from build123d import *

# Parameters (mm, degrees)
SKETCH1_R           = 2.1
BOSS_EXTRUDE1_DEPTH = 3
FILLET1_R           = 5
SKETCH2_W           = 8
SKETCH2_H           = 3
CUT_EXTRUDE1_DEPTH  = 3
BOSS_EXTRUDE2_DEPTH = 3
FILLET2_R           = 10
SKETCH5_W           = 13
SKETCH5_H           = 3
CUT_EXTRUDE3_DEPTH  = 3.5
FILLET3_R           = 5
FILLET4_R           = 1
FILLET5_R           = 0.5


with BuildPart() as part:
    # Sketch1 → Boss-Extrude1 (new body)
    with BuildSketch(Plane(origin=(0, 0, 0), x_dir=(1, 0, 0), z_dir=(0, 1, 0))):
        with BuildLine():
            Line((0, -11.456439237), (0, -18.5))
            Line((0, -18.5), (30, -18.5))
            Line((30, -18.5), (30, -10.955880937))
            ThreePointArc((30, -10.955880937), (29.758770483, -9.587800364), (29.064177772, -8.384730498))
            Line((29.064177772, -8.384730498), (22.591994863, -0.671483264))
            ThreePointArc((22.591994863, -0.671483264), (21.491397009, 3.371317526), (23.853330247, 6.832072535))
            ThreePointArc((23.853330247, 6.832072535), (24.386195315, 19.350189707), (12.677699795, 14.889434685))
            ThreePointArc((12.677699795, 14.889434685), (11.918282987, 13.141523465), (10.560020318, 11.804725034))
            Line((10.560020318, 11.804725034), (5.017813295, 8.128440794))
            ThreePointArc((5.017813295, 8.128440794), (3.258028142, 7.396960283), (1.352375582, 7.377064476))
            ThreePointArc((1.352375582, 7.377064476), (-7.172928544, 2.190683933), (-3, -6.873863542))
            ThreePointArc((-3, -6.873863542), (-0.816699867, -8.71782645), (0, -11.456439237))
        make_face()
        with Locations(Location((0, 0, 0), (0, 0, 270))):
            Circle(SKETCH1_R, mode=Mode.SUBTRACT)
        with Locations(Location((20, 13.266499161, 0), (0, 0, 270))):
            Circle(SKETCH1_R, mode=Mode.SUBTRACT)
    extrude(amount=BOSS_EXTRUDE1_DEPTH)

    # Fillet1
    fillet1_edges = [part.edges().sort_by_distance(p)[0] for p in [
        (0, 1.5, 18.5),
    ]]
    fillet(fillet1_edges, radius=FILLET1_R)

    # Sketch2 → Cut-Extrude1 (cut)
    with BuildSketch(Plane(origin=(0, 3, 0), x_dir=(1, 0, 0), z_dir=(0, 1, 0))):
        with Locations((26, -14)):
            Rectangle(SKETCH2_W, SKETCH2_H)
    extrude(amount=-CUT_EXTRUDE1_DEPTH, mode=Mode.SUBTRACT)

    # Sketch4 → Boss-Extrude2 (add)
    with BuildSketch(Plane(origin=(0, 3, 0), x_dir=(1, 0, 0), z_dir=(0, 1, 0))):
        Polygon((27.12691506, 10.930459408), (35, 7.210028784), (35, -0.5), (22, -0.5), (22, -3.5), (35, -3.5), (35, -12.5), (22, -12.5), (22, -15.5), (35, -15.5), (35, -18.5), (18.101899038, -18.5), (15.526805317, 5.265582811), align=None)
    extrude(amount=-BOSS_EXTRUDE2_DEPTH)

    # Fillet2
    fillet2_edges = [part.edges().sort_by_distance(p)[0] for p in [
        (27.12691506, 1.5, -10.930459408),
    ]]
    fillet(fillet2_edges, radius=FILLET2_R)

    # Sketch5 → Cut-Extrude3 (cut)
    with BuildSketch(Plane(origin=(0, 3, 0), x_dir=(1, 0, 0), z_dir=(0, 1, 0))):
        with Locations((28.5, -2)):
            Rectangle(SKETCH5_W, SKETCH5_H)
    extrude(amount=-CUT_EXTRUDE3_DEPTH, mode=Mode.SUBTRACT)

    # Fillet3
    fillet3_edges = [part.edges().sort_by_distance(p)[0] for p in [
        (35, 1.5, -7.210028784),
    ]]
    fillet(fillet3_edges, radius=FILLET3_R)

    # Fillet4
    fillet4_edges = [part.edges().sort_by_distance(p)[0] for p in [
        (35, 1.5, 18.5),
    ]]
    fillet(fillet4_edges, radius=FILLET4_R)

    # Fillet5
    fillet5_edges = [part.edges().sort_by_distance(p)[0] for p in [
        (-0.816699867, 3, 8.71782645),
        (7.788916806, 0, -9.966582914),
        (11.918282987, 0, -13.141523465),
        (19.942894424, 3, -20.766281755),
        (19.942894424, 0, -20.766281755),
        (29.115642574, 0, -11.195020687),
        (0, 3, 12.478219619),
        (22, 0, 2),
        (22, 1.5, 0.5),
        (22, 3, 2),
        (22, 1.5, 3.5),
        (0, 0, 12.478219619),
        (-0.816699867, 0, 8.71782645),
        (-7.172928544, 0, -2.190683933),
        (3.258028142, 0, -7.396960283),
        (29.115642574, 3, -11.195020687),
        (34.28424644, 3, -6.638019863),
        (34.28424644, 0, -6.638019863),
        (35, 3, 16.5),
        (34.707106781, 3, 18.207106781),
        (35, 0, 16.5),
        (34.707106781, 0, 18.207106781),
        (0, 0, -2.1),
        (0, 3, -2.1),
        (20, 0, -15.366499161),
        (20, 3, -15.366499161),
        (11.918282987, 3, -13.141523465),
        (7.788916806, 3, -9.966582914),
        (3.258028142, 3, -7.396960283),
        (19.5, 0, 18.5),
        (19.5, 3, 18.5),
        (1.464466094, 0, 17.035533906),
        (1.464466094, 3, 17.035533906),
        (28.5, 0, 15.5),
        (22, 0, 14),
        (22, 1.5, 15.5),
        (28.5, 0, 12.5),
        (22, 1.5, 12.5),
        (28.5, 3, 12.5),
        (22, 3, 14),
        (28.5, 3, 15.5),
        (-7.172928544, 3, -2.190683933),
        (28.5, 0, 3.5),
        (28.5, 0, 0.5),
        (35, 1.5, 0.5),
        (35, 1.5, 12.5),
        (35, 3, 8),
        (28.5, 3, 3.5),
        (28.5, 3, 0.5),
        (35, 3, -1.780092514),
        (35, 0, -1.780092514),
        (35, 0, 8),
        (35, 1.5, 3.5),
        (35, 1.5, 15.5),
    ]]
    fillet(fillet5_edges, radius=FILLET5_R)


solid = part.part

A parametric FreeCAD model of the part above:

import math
import FreeCAD as App
import Part
import Sketcher
from FreeCAD import Vector
Q = App.Units.Quantity


def edges_at(feature, points):
    """Names of the edges that pass closest to the given points."""
    edges = feature.Shape.Edges
    near = lambda p: min(range(len(edges)), key=lambda i: edges[i].distToShape(Part.Vertex(*p))[0])
    return sorted({f"Edge{near(p) + 1}" for p in points})


def add_polygon(sketch, points):
    """Adds a closed chain of lines whose ends are joined by coincident constraints."""
    first, n = sketch.GeometryCount, len(points)
    for a, b in zip(points, points[1:] + points[:1]):
        sketch.addGeometry(Part.LineSegment(App.Vector(*a, 0), App.Vector(*b, 0)), False)
    for i in range(n):
        sketch.addConstraint(Sketcher.Constraint("Coincident", first + i, 2, first + (i + 1) % n, 1))

doc = App.newDocument("Part")
body = doc.addObject("PartDesign::Body", "Body")

# Sketch on XZ plane
sketch1 = body.newObject("Sketcher::SketchObject", "Sketch")
sketch1.AttachmentSupport = (doc.getObject("XZ_Plane"), [""])
sketch1.MapMode = "FlatFace"
sketch1.addGeometry(Part.LineSegment(Vector(0, 11.5, 0), Vector(0, 18.5, 0)), False)
sketch1.addGeometry(Part.LineSegment(Vector(0, 18.5, 0), Vector(30, 18.5, 0)), False)
sketch1.addGeometry(Part.LineSegment(Vector(30, 18.5, 0), Vector(30, 11, 0)), False)
sketch1.addGeometry(Part.ArcOfCircle(Part.Circle(Vector(26, 11, 0), Vector(0, 0, 1), 4), math.radians(-40), math.radians(0)), False)
sketch1.addGeometry(Part.LineSegment(Vector(29.1, 8.4, 0), Vector(22.6, 0.7, 0)), False)
sketch1.addGeometry(Part.ArcOfCircle(Part.Circle(Vector(26.4, -2.5, 0), Vector(0, 0, 1), 5), math.radians(140), math.radians(239)), False)
sketch1.addGeometry(Part.ArcOfCircle(Part.Circle(Vector(20, -13.3, 0), Vector(0, 0, 1), 7.5), math.radians(-168), math.radians(59)), False)
sketch1.addGeometry(Part.ArcOfCircle(Part.Circle(Vector(7.8, -16, 0), Vector(0, 0, 1), 5), math.radians(12), math.radians(56)), False)
sketch1.addGeometry(Part.LineSegment(Vector(10.6, -11.8, 0), Vector(5, -8.1, 0)), False)
sketch1.addGeometry(Part.ArcOfCircle(Part.Circle(Vector(2.3, -12.3, 0), Vector(0, 0, 1), 5), math.radians(56), math.radians(100)), False)
sketch1.addGeometry(Part.ArcOfCircle(Part.Circle(Vector(0, 0, 0), Vector(0, 0, 1), 7.5), math.radians(114), math.radians(280)), False)
sketch1.addGeometry(Part.ArcOfCircle(Part.Circle(Vector(-5, 11.5, 0), Vector(0, 0, 1), 5), math.radians(-66), math.radians(0)), False)
sketch1.addGeometry(Part.Circle(Vector(0, 0, 0), Vector(0, 0, 1), 2.1), False)
sketch1.addGeometry(Part.Circle(Vector(20, -13.3, 0), Vector(0, 0, 1), 2.1), False)
sketch1.addConstraint(Sketcher.Constraint("Coincident", 0, 2, 1, 1))
sketch1.addConstraint(Sketcher.Constraint("Coincident", 1, 2, 2, 1))
sketch1.addConstraint(Sketcher.Constraint("Tangent", 2, 2, 3, 2))
sketch1.addConstraint(Sketcher.Constraint("Tangent", 3, 1, 4, 1))
sketch1.addConstraint(Sketcher.Constraint("Tangent", 4, 2, 5, 1))
sketch1.addConstraint(Sketcher.Constraint("Tangent", 5, 2, 6, 2))
sketch1.addConstraint(Sketcher.Constraint("Tangent", 6, 1, 7, 1))
sketch1.addConstraint(Sketcher.Constraint("Tangent", 7, 2, 8, 1))
sketch1.addConstraint(Sketcher.Constraint("Tangent", 8, 2, 9, 1))
sketch1.addConstraint(Sketcher.Constraint("Tangent", 9, 2, 10, 2))
sketch1.addConstraint(Sketcher.Constraint("Tangent", 10, 1, 11, 1))
sketch1.addConstraint(Sketcher.Constraint("Tangent", 11, 2, 0, 1))
sketch1.addConstraint(Sketcher.Constraint("Vertical", 0))
sketch1.addConstraint(Sketcher.Constraint("Horizontal", 1))
sketch1.addConstraint(Sketcher.Constraint("Vertical", 2))
sketch1.addConstraint(Sketcher.Constraint("Coincident", 10, 3, -1, 1))
sketch1.addConstraint(Sketcher.Constraint("Coincident", 12, 3, -1, 1))
sketch1.addConstraint(Sketcher.Constraint("Coincident", 13, 3, 6, 3))
sketch1.addConstraint(Sketcher.Constraint("Equal", 5, 7))
sketch1.addConstraint(Sketcher.Constraint("Equal", 7, 9))
sketch1.addConstraint(Sketcher.Constraint("Equal", 6, 10))
sketch1.addConstraint(Sketcher.Constraint("Equal", 9, 11))
sketch1.addConstraint(Sketcher.Constraint("Equal", 12, 13))
sketch1.addConstraint(Sketcher.Constraint("PointOnObject", 0, 2, -2))
sketch1.addConstraint(Sketcher.Constraint("Radius", 3, 4.0))
sketch1.addConstraint(Sketcher.Constraint("Radius", 5, 5.0))
sketch1.addConstraint(Sketcher.Constraint("Diameter", 12, 4.2))
sketch1.addConstraint(Sketcher.Constraint("Radius", 6, 7.5))
sketch1.addConstraint(Sketcher.Constraint("DistanceX", 1, 1, 1, 2, 30.0))
sketch1.addConstraint(Sketcher.Constraint("Angle", 4, Q("-130 deg")))
sketch1.addConstraint(Sketcher.Constraint("DistanceX", -1, 1, 6, 3, 20.0))
sketch1.addConstraint(Sketcher.Constraint("DistanceY", -1, 1, 0, 2, 18.5))
sketch1.addConstraint(Sketcher.Constraint("DistanceY", 2, 2, 2, 1, 7.544119))
sketch1.addConstraint(Sketcher.Constraint("DistanceY", 6, 3, -1, 1, 13.266499))
sketch1.addConstraint(Sketcher.Constraint("DistanceX", -1, 1, 6, 1, 12.6777))
sketch1.addConstraint(Sketcher.Constraint("Distance", 8, 6.650648))
pad1 = body.newObject("PartDesign::Pad", "Pad")
pad1.Profile = sketch1
pad1.Length = 3
pad1.Reversed = True
doc.recompute()

fillet = body.newObject("PartDesign::Fillet", "Fillet")
fillet.Base = (pad1, edges_at(pad1, [(0, 1.5, 18.5)]))
fillet.Radius = 5

# Sketch on XZ plane
sketch2 = body.newObject("Sketcher::SketchObject", "Sketch001")
sketch2.AttachmentSupport = (doc.getObject("XZ_Plane"), [""])
sketch2.MapMode = "FlatFace"
sketch2.AttachmentOffset = App.Placement(Vector(0, 0, -3), App.Rotation())
add_polygon(sketch2, [(22, 12.5), (22, 15.5), (30, 15.5), (30, 12.5)])  # lines 0-3
sketch2.addConstraint(Sketcher.Constraint("Vertical", 0))
sketch2.addConstraint(Sketcher.Constraint("Horizontal", 1))
sketch2.addConstraint(Sketcher.Constraint("Vertical", 2))
sketch2.addConstraint(Sketcher.Constraint("Horizontal", 3))
sketch2.addConstraint(Sketcher.Constraint("DistanceX", 1, 1, 1, 2, 8.0))
sketch2.addConstraint(Sketcher.Constraint("DistanceY", 0, 1, 0, 2, 3.0))
sketch2.addConstraint(Sketcher.Constraint("DistanceX", -1, 1, 0, 2, 22.0))
sketch2.addConstraint(Sketcher.Constraint("DistanceY", -1, 1, 0, 2, 15.5))
pocket1 = body.newObject("PartDesign::Pocket", "Pocket")
pocket1.Profile = sketch2
pocket1.Length = 3
pocket1.Reversed = True

# Sketch on XZ plane
sketch3 = body.newObject("Sketcher::SketchObject", "Sketch002")
sketch3.AttachmentSupport = (doc.getObject("XZ_Plane"), [""])
sketch3.MapMode = "FlatFace"
sketch3.AttachmentOffset = App.Placement(Vector(0, 0, -3), App.Rotation())
add_polygon(sketch3, [(35, -7.2), (27.1, -10.9), (15.5, -5.3), (18.1, 18.5), (35, 18.5), (35, 15.5), (22, 15.5), (22, 12.5), (35, 12.5), (35, 3.5), (22, 3.5), (22, 0.5), (35, 0.5)])  # lines 0-12
sketch3.addConstraint(Sketcher.Constraint("Horizontal", 3))
sketch3.addConstraint(Sketcher.Constraint("Vertical", 4))
sketch3.addConstraint(Sketcher.Constraint("Horizontal", 5))
sketch3.addConstraint(Sketcher.Constraint("Vertical", 6))
sketch3.addConstraint(Sketcher.Constraint("Horizontal", 7))
sketch3.addConstraint(Sketcher.Constraint("Vertical", 8))
sketch3.addConstraint(Sketcher.Constraint("Horizontal", 9))
sketch3.addConstraint(Sketcher.Constraint("Vertical", 10))
sketch3.addConstraint(Sketcher.Constraint("Horizontal", 11))
sketch3.addConstraint(Sketcher.Constraint("Vertical", 12))
sketch3.addConstraint(Sketcher.Constraint("Vertical", 4, 2, 7, 2))
sketch3.addConstraint(Sketcher.Constraint("Vertical", 6, 2, 9, 2))
sketch3.addConstraint(Sketcher.Constraint("Vertical", 8, 2, 11, 2))
sketch3.addConstraint(Sketcher.Constraint("Equal", 4, 6))
sketch3.addConstraint(Sketcher.Constraint("Equal", 6, 10))
sketch3.addConstraint(Sketcher.Constraint("DistanceX", 5, 2, 5, 1, 13.0))
sketch3.addConstraint(Sketcher.Constraint("DistanceY", 4, 2, 4, 1, 3.0))
sketch3.addConstraint(Sketcher.Constraint("DistanceY", 8, 2, 8, 1, 9.0))
sketch3.addConstraint(Sketcher.Constraint("DistanceX", -1, 1, 3, 2, 35.0))
sketch3.addConstraint(Sketcher.Constraint("DistanceY", -1, 1, 2, 2, 18.5))
sketch3.addConstraint(Sketcher.Constraint("DistanceX", 3, 1, 3, 2, 16.898101))
sketch3.addConstraint(Sketcher.Constraint("DistanceY", 12, 2, 12, 1, 7.710029))
sketch3.addConstraint(Sketcher.Constraint("Distance", 1, 12.90943))
sketch3.addConstraint(Sketcher.Constraint("DistanceY", 0, 2, -1, 1, 10.930459))
sketch3.addConstraint(Sketcher.Constraint("DistanceX", 1, 2, 0, 2, 11.60011))
sketch3.addConstraint(Sketcher.Constraint("Distance", 0, 8.707874))
pad2 = body.newObject("PartDesign::Pad", "Pad001")
pad2.Profile = sketch3
pad2.Length = 3
doc.recompute()

fillet2 = body.newObject("PartDesign::Fillet", "Fillet001")
fillet2.Base = (pad2, edges_at(pad2, [(27.127, 1.5, -10.93)]))
fillet2.Radius = 10

# Sketch on XZ plane
sketch4 = body.newObject("Sketcher::SketchObject", "Sketch003")
sketch4.AttachmentSupport = (doc.getObject("XZ_Plane"), [""])
sketch4.MapMode = "FlatFace"
sketch4.AttachmentOffset = App.Placement(Vector(0, 0, -3), App.Rotation())
add_polygon(sketch4, [(22, 0.5), (22, 3.5), (35, 3.5), (35, 0.5)])  # lines 0-3
sketch4.addConstraint(Sketcher.Constraint("Vertical", 0))
sketch4.addConstraint(Sketcher.Constraint("Horizontal", 1))
sketch4.addConstraint(Sketcher.Constraint("Vertical", 2))
sketch4.addConstraint(Sketcher.Constraint("Horizontal", 3))
sketch4.addConstraint(Sketcher.Constraint("DistanceX", 1, 1, 1, 2, 13.0))
sketch4.addConstraint(Sketcher.Constraint("DistanceY", 0, 1, 0, 2, 3.0))
sketch4.addConstraint(Sketcher.Constraint("DistanceX", -1, 1, 0, 2, 22.0))
sketch4.addConstraint(Sketcher.Constraint("DistanceY", -1, 1, 0, 2, 3.5))
pocket2 = body.newObject("PartDesign::Pocket", "Pocket001")
pocket2.Profile = sketch4
pocket2.Length = 3.5
pocket2.Reversed = True
doc.recompute()

fillet3 = body.newObject("PartDesign::Fillet", "Fillet002")
fillet3.Base = (pocket2, edges_at(pocket2, [(35, 1.5, -7.21)]))
fillet3.Radius = 5
doc.recompute()

fillet4 = body.newObject("PartDesign::Fillet", "Fillet003")
fillet4.Base = (fillet3, edges_at(fillet3, [(35, 1.5, 18.5)]))
fillet4.Radius = 1
doc.recompute()

fillet5 = body.newObject("PartDesign::Fillet", "Fillet004")
fillet5.Base = (fillet4, ["Edge1"])
fillet5.UseAllEdges = True
fillet5.Radius = 0.5

doc.recompute()
